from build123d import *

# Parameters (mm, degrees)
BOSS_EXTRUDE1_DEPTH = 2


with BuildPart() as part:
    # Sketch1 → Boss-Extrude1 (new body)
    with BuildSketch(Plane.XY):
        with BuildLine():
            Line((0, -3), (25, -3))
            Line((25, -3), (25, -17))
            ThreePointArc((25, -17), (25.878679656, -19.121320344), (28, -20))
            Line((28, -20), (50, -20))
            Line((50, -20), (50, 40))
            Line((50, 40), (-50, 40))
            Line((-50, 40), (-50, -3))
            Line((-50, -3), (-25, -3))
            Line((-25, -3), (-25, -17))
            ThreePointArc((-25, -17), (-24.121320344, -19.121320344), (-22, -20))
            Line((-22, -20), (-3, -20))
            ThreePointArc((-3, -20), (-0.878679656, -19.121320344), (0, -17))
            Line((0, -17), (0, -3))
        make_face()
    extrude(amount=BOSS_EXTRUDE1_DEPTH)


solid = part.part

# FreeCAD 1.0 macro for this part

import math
import FreeCAD as App
import Part
import Sketcher
from FreeCAD import Vector
Q = App.Units.Quantity

doc = App.newDocument("Part")
body = doc.addObject("PartDesign::Body", "Body")

# Sketch on XY plane
sketch1 = body.newObject("Sketcher::SketchObject", "Sketch")
sketch1.AttachmentSupport = (doc.getObject("XY_Plane"), [""])
sketch1.MapMode = "FlatFace"
sketch1.addGeometry([
    Part.LineSegment(Vector(0, -3, 0), Vector(25, -3, 0)),  # 0
    Part.LineSegment(Vector(25, -3, 0), Vector(25, -17, 0)),  # 1
    Part.ArcOfCircle(Part.Circle(Vector(28, -17, 0), Vector(0, 0, 1), 3), math.radians(180), math.radians(270)),  # 2
    Part.LineSegment(Vector(28, -20, 0), Vector(50, -20, 0)),  # 3
    Part.LineSegment(Vector(50, -20, 0), Vector(50, 40, 0)),  # 4
    Part.LineSegment(Vector(50, 40, 0), Vector(-50, 40, 0)),  # 5
    Part.LineSegment(Vector(-50, 40, 0), Vector(-50, -3, 0)),  # 6
    Part.LineSegment(Vector(-50, -3, 0), Vector(-25, -3, 0)),  # 7
    Part.LineSegment(Vector(-25, -3, 0), Vector(-25, -17, 0)),  # 8
    Part.ArcOfCircle(Part.Circle(Vector(-22, -17, 0), Vector(0, 0, 1), 3), math.radians(180), math.radians(270)),  # 9
    Part.LineSegment(Vector(-22, -20, 0), Vector(-3, -20, 0)),  # 10
    Part.ArcOfCircle(Part.Circle(Vector(-3, -17, 0), Vector(0, 0, 1), 3), math.radians(-90), math.radians(0)),  # 11
    Part.LineSegment(Vector(0, -17, 0), Vector(0, -3, 0)),  # 12
], False)
sketch1.addConstraint([
    Sketcher.Constraint("Coincident", 0, 2, 1, 1),
    Sketcher.Constraint("Tangent", 1, 2, 2, 1),
    Sketcher.Constraint("Tangent", 2, 2, 3, 1),
    Sketcher.Constraint("Coincident", 3, 2, 4, 1),
    Sketcher.Constraint("Coincident", 4, 2, 5, 1),
    Sketcher.Constraint("Coincident", 5, 2, 6, 1),
    Sketcher.Constraint("Coincident", 6, 2, 7, 1),
    Sketcher.Constraint("Coincident", 7, 2, 8, 1),
    Sketcher.Constraint("Tangent", 8, 2, 9, 1),
    Sketcher.Constraint("Tangent", 9, 2, 10, 1),
    Sketcher.Constraint("Tangent", 10, 2, 11, 1),
    Sketcher.Constraint("Tangent", 11, 2, 12, 1),
    Sketcher.Constraint("Coincident", 12, 2, 0, 1),
    Sketcher.Constraint("Horizontal", 0),
    Sketcher.Constraint("Vertical", 1),
    Sketcher.Constraint("Horizontal", 3),
    Sketcher.Constraint("Vertical", 4),
    Sketcher.Constraint("Horizontal", 5),
    Sketcher.Constraint("Vertical", 6),
    Sketcher.Constraint("Horizontal", 7),
    Sketcher.Constraint("Vertical", 8),
    Sketcher.Constraint("Horizontal", 10),
    Sketcher.Constraint("Vertical", 12),
    Sketcher.Constraint("Equal", 2, 9),
    Sketcher.Constraint("Equal", 9, 11),
    Sketcher.Constraint("Symmetric", 0, 2, 7, 2, -2),
    Sketcher.Constraint("PointOnObject", 11, 2, -2),
    Sketcher.Constraint("Horizontal", 2, 3, 9, 3),
    Sketcher.Constraint("Equal", 0, 7),
    Sketcher.Constraint("Radius", 2, Q("3 mm")),
    Sketcher.Constraint("DistanceX", 0, 1, 0, 2, Q("25 mm")),
    Sketcher.Constraint("DistanceX", 3, 1, 3, 2, Q("22 mm")),
    Sketcher.Constraint("DistanceY", 1, 2, 1, 1, Q("14 mm")),
    Sketcher.Constraint("DistanceY", 4, 1, 4, 2, Q("60 mm")),
    Sketcher.Constraint("DistanceY", 2, 3, -1, 1, Q("17 mm")),
])
pad1 = body.newObject("PartDesign::Pad", "Pad")
pad1.Profile = sketch1
pad1.Length = 2

doc.recompute()
